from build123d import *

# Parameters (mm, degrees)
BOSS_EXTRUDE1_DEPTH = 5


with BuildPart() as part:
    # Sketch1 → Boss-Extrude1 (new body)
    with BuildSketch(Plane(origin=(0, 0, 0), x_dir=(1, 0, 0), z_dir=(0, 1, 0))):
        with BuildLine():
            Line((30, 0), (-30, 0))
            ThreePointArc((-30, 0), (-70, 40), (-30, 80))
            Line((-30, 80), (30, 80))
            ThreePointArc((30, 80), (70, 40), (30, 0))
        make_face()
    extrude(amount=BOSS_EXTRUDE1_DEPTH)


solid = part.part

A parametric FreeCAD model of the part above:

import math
import FreeCAD as App
import Part
import Sketcher
from FreeCAD import Vector

doc = App.newDocument("Part")
params = doc.addObject("Spreadsheet::Sheet", "Params")
for row, (alias, value) in enumerate([
    ("sketch1_radius", "40 mm"),
    ("sketch1_width", "60 mm"),
    ("pad1_length", "5 mm"),
], start=1):
    params.set(f"A{row}", alias)
    params.set(f"B{row}", "=" + value)
    params.setAlias(f"B{row}", alias)

body = doc.addObject("PartDesign::Body", "Body")

sketch1 = doc.addObject("Sketcher::SketchObject", "Sketch")
body.addObject(sketch1)
sketch1.AttachmentSupport = (doc.XZ_Plane, [""])
sketch1.MapMode = "FlatFace"
sketch1.addGeometry(Part.LineSegment(Vector(-30, 0, 0), Vector(30, 0, 0)), False)
sketch1.addGeometry(Part.ArcOfCircle(Part.Circle(Vector(30, -40, 0), Vector(0, 0, 1), 40), math.radians(-90), math.radians(90)), False)
sketch1.addGeometry(Part.LineSegment(Vector(30, -80, 0), Vector(-30, -80, 0)), False)
sketch1.addGeometry(Part.ArcOfCircle(Part.Circle(Vector(-30, -40, 0), Vector(0, 0, 1), 40), math.radians(90), math.radians(270)), False)
sketch1.addConstraint(Sketcher.Constraint("Tangent", 0, 2, 1, 2))
sketch1.addConstraint(Sketcher.Constraint("Tangent", 1, 1, 2, 1))
sketch1.addConstraint(Sketcher.Constraint("Tangent", 2, 2, 3, 2))
sketch1.addConstraint(Sketcher.Constraint("Tangent", 3, 1, 0, 1))
sketch1.addConstraint(Sketcher.Constraint("Horizontal", 0))
sketch1.addConstraint(Sketcher.Constraint("Horizontal", 2))
sketch1.addConstraint(Sketcher.Constraint("Symmetric", 0, 2, 3, 1, -1, 1))
sketch1.addConstraint(Sketcher.Constraint("Radius", 1, 40.0))
sketch1.addConstraint(Sketcher.Constraint("DistanceX", 0, 1, 0, 2, 60.0))
sketch1.setExpression("Constraints[7]", "Params.sketch1_radius")
sketch1.setExpression("Constraints[8]", "Params.sketch1_width")
pad1 = doc.addObject("PartDesign::Pad", "Pad")
body.addObject(pad1)
pad1.Profile = sketch1
pad1.setExpression("Length", "Params.pad1_length")
pad1.Reversed = True

doc.recompute()
